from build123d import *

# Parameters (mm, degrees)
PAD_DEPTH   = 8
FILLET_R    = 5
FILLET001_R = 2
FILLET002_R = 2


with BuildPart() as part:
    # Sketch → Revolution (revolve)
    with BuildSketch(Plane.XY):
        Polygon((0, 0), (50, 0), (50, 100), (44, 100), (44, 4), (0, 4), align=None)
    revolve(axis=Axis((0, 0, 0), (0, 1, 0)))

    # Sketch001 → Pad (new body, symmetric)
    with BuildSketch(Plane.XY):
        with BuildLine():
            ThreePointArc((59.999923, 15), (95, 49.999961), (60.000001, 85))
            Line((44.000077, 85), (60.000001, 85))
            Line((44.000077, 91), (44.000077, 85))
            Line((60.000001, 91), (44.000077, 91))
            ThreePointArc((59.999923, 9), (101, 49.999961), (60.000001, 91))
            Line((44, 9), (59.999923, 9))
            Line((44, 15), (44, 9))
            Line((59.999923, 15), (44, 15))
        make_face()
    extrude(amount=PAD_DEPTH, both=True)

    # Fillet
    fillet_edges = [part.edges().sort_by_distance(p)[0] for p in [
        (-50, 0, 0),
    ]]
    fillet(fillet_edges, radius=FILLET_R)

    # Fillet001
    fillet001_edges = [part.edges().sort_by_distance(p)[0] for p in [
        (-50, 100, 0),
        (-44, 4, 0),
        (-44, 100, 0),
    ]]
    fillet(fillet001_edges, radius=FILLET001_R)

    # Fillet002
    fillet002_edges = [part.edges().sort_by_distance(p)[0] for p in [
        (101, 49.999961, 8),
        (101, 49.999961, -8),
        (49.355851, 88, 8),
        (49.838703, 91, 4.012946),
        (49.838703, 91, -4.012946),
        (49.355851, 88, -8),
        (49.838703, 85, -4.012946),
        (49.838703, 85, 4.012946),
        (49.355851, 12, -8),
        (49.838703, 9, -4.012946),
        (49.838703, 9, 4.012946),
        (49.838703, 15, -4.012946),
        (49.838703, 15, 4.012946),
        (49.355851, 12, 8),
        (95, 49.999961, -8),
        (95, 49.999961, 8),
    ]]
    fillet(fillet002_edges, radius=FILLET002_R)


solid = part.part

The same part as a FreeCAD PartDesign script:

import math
import FreeCAD as App
import Part
import Sketcher
from FreeCAD import Vector


def edges_at(feature, points):
    """Names of the edges that pass closest to the given points."""
    edges = feature.Shape.Edges
    near = lambda p: min(range(len(edges)), key=lambda i: edges[i].distToShape(Part.Vertex(*p))[0])
    return sorted({f"Edge{near(p) + 1}" for p in points})


def add_polygon(sketch, points):
    """Adds a closed chain of lines whose ends are joined by coincident constraints."""
    first, n = sketch.GeometryCount, len(points)
    for a, b in zip(points, points[1:] + points[:1]):
        sketch.addGeometry(Part.LineSegment(App.Vector(*a, 0), App.Vector(*b, 0)), False)
    for i in range(n):
        sketch.addConstraint(Sketcher.Constraint("Coincident", first + i, 2, first + (i + 1) % n, 1))

doc = App.newDocument("Part")
body = doc.addObject("PartDesign::Body", "Body")

sketch1 = body.newObject("Sketcher::SketchObject", "Sketch")
sketch1.AttachmentSupport = (doc.getObject("XY_Plane"), [""])
sketch1.MapMode = "FlatFace"
add_polygon(sketch1, [(0, 0), (50, 0), (50, 100), (44, 100), (44, 4), (0, 4)])
sketch1.addConstraint(Sketcher.Constraint("Horizontal", 0))
sketch1.addConstraint(Sketcher.Constraint("Vertical", 1))
sketch1.addConstraint(Sketcher.Constraint("Horizontal", 2))
sketch1.addConstraint(Sketcher.Constraint("Vertical", 3))
sketch1.addConstraint(Sketcher.Constraint("Horizontal", 4))
sketch1.addConstraint(Sketcher.Constraint("Vertical", 5))
sketch1.addConstraint(Sketcher.Constraint("Coincident", 5, 2, -1, 1))
sketch1.addConstraint(Sketcher.Constraint("DistanceX", 0, 1, 0, 2, 50.0))
sketch1.addConstraint(Sketcher.Constraint("DistanceX", 2, 2, 2, 1, 6.0))
sketch1.addConstraint(Sketcher.Constraint("DistanceY", 1, 1, 1, 2, 100.0))
sketch1.addConstraint(Sketcher.Constraint("DistanceY", 3, 2, 3, 1, 96.0))
revolution = body.newObject("PartDesign::Revolution", "Revolution")
revolution.Profile = sketch1
revolution.ReferenceAxis = (sketch1, ["V_Axis"])
revolution.Angle = 360

sketch2 = body.newObject("Sketcher::SketchObject", "Sketch001")
sketch2.AttachmentSupport = (doc.getObject("XY_Plane"), [""])
sketch2.MapMode = "FlatFace"
sketch2.addGeometry(Part.ArcOfCircle(Part.Circle(Vector(60, 50, 0), Vector(0, 0, 1), 35), math.radians(-90.000126), math.radians(89.999998)), False)
sketch2.addGeometry(Part.LineSegment(Vector(59.999923, 15, 0), Vector(44, 15, 0)), False)
sketch2.addGeometry(Part.LineSegment(Vector(44, 15, 0), Vector(44, 9, 0)), False)
sketch2.addGeometry(Part.LineSegment(Vector(44, 9, 0), Vector(59.999923, 9, 0)), False)
sketch2.addGeometry(Part.ArcOfCircle(Part.Circle(Vector(60, 50, 0), Vector(0, 0, 1), 41), math.radians(-90.000108), math.radians(89.999999)), False)
sketch2.addGeometry(Part.LineSegment(Vector(60.000001, 91, 0), Vector(44.000077, 91, 0)), False)
sketch2.addGeometry(Part.LineSegment(Vector(44.000077, 91, 0), Vector(44.000077, 85, 0)), False)
sketch2.addGeometry(Part.LineSegment(Vector(44.000077, 85, 0), Vector(60.000001, 85, 0)), False)
sketch2.addConstraint(Sketcher.Constraint("Coincident", 0, 1, 1, 1))
sketch2.addConstraint(Sketcher.Constraint("Coincident", 1, 2, 2, 1))
sketch2.addConstraint(Sketcher.Constraint("Coincident", 2, 2, 3, 1))
sketch2.addConstraint(Sketcher.Constraint("Coincident", 3, 2, 4, 1))
sketch2.addConstraint(Sketcher.Constraint("Coincident", 4, 2, 5, 1))
sketch2.addConstraint(Sketcher.Constraint("Coincident", 5, 2, 6, 1))
sketch2.addConstraint(Sketcher.Constraint("Coincident", 6, 2, 7, 1))
sketch2.addConstraint(Sketcher.Constraint("Coincident", 7, 2, 0, 2))
sketch2.addConstraint(Sketcher.Constraint("Horizontal", 1))
sketch2.addConstraint(Sketcher.Constraint("Vertical", 2))
sketch2.addConstraint(Sketcher.Constraint("Horizontal", 3))
sketch2.addConstraint(Sketcher.Constraint("Horizontal", 5))
sketch2.addConstraint(Sketcher.Constraint("Vertical", 6))
sketch2.addConstraint(Sketcher.Constraint("Horizontal", 7))
sketch2.addConstraint(Sketcher.Constraint("Coincident", 4, 3, 0, 3))
sketch2.addConstraint(Sketcher.Constraint("Radius", 0, 35.0))
sketch2.addConstraint(Sketcher.Constraint("Radius", 4, 41.0))
sketch2.addConstraint(Sketcher.Constraint("DistanceX", -1, 1, 0, 3, 60.0))
sketch2.addConstraint(Sketcher.Constraint("DistanceY", -1, 1, 0, 3, 50.0))
sketch2.addConstraint(Sketcher.Constraint("DistanceX", -1, 1, 1, 2, 44.0))
sketch2.addConstraint(Sketcher.Constraint("DistanceX", -1, 1, 4, 2, 60.000001))
sketch2.addConstraint(Sketcher.Constraint("DistanceX", -1, 1, 7, 2, 60.000001))
sketch2.addConstraint(Sketcher.Constraint("DistanceX", 1, 2, 1, 1, 15.999923))
sketch2.addConstraint(Sketcher.Constraint("DistanceX", 3, 1, 3, 2, 15.999923))
sketch2.addConstraint(Sketcher.Constraint("DistanceX", 5, 2, 5, 1, 15.999924))
pad1 = body.newObject("PartDesign::Pad", "Pad")
pad1.Profile = sketch2
pad1.Length = 16
pad1.Midplane = True
doc.recompute()

fillet = body.newObject("PartDesign::Fillet", "Fillet")
fillet.Base = (pad1, edges_at(pad1, [(-50, 0, 0)]))
fillet.Radius = 5
doc.recompute()

fillet2 = body.newObject("PartDesign::Fillet", "Fillet001")
fillet2.Base = (fillet, edges_at(fillet, [(-50, 100, 0), (-44, 4, 0), (-44, 100, 0)]))
fillet2.Radius = 2
doc.recompute()

fillet3 = body.newObject("PartDesign::Fillet", "Fillet002")
fillet3.Base = (fillet2, edges_at(fillet2, [
    (101, 50, 8),
    (101, 50, -8),
    (49.356, 88, 8),
    (49.839, 91, 4.013),
    (49.839, 91, -4.013),
    (49.356, 88, -8),
    (49.839, 85, -4.013),
    (49.839, 85, 4.013),
    (49.356, 12, -8),
    (49.839, 9, -4.013),
    (49.839, 9, 4.013),
    (49.839, 15, -4.013),
    (49.839, 15, 4.013),
    (49.356, 12, 8),
    (95, 50, -8),
    (95, 50, 8),
]))
fillet3.Radius = 2

doc.recompute()
